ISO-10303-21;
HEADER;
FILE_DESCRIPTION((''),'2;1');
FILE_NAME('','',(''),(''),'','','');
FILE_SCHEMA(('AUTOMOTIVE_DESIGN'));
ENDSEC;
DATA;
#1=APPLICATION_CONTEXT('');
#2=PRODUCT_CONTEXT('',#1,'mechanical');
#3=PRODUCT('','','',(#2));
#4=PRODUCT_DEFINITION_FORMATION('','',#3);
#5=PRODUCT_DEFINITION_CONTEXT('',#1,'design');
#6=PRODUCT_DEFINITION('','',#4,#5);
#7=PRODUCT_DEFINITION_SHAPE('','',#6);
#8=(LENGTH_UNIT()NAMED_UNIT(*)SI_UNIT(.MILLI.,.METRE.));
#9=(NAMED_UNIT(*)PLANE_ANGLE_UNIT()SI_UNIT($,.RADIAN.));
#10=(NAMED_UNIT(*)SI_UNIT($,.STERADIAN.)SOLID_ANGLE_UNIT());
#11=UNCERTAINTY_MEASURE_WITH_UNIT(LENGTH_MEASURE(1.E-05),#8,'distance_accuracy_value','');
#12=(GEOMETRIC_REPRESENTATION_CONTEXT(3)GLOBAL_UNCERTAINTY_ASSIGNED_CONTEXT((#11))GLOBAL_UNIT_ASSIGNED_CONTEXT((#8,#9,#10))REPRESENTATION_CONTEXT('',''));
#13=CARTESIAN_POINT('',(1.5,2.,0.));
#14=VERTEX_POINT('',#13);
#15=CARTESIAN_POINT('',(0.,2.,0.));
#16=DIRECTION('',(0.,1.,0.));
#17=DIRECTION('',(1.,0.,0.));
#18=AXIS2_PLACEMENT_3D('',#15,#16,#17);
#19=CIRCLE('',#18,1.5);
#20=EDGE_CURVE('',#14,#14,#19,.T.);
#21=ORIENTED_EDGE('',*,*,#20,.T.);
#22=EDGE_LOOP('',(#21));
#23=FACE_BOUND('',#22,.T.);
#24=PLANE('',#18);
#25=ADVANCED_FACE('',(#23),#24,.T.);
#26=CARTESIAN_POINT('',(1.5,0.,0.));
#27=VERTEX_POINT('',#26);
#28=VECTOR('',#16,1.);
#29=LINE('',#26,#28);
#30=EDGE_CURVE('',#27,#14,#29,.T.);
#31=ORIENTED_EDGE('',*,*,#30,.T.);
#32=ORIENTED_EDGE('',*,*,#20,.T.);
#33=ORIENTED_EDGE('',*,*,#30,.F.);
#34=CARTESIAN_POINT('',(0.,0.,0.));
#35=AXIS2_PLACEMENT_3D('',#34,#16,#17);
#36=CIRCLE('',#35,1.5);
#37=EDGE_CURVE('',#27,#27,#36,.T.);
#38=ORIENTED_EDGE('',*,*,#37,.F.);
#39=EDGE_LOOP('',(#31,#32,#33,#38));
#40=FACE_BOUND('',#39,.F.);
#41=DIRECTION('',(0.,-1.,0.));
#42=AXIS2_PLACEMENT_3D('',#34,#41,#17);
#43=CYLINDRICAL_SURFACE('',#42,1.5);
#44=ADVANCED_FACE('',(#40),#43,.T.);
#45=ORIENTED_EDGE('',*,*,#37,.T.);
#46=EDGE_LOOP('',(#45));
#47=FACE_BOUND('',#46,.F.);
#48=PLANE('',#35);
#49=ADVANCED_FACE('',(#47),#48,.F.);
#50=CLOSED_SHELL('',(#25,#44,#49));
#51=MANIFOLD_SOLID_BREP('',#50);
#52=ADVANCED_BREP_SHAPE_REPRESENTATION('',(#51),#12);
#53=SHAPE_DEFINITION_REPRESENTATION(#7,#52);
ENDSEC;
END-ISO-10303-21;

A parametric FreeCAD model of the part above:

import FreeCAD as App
import Part
import Sketcher
Q = App.Units.Quantity

doc = App.newDocument("Part")
params = doc.addObject("Spreadsheet::Sheet", "Params")
for row, (alias, value) in enumerate([
    ("sketch1_diameter", "3 mm"),
    ("pad1_length", "2 mm"),
], start=1):
    params.set(f"A{row}", alias)
    params.set(f"B{row}", "=" + value)
    params.setAlias(f"B{row}", alias)

body = doc.addObject("PartDesign::Body", "Body")

# Sketch on XZ plane
sketch1 = doc.addObject("Sketcher::SketchObject", "Sketch")
body.addObject(sketch1)
sketch1.AttachmentSupport = (doc.XZ_Plane, [""])
sketch1.MapMode = "FlatFace"
sketch1.addGeometry(Part.Circle(App.Vector(0, 0, 0), App.Vector(0, 0, 1), 1.5), False)
sketch1.addConstraint([
    Sketcher.Constraint("Coincident", 0, 3, -1, 1),
    Sketcher.Constraint("Diameter", 0, Q("3 mm")),
])
sketch1.setExpression("Constraints[1]", "Params.sketch1_diameter")
pad1 = doc.addObject("PartDesign::Pad", "Pad")
body.addObject(pad1)
pad1.Profile = sketch1
pad1.setExpression("Length", "Params.pad1_length")
pad1.Reversed = True

doc.recompute()
